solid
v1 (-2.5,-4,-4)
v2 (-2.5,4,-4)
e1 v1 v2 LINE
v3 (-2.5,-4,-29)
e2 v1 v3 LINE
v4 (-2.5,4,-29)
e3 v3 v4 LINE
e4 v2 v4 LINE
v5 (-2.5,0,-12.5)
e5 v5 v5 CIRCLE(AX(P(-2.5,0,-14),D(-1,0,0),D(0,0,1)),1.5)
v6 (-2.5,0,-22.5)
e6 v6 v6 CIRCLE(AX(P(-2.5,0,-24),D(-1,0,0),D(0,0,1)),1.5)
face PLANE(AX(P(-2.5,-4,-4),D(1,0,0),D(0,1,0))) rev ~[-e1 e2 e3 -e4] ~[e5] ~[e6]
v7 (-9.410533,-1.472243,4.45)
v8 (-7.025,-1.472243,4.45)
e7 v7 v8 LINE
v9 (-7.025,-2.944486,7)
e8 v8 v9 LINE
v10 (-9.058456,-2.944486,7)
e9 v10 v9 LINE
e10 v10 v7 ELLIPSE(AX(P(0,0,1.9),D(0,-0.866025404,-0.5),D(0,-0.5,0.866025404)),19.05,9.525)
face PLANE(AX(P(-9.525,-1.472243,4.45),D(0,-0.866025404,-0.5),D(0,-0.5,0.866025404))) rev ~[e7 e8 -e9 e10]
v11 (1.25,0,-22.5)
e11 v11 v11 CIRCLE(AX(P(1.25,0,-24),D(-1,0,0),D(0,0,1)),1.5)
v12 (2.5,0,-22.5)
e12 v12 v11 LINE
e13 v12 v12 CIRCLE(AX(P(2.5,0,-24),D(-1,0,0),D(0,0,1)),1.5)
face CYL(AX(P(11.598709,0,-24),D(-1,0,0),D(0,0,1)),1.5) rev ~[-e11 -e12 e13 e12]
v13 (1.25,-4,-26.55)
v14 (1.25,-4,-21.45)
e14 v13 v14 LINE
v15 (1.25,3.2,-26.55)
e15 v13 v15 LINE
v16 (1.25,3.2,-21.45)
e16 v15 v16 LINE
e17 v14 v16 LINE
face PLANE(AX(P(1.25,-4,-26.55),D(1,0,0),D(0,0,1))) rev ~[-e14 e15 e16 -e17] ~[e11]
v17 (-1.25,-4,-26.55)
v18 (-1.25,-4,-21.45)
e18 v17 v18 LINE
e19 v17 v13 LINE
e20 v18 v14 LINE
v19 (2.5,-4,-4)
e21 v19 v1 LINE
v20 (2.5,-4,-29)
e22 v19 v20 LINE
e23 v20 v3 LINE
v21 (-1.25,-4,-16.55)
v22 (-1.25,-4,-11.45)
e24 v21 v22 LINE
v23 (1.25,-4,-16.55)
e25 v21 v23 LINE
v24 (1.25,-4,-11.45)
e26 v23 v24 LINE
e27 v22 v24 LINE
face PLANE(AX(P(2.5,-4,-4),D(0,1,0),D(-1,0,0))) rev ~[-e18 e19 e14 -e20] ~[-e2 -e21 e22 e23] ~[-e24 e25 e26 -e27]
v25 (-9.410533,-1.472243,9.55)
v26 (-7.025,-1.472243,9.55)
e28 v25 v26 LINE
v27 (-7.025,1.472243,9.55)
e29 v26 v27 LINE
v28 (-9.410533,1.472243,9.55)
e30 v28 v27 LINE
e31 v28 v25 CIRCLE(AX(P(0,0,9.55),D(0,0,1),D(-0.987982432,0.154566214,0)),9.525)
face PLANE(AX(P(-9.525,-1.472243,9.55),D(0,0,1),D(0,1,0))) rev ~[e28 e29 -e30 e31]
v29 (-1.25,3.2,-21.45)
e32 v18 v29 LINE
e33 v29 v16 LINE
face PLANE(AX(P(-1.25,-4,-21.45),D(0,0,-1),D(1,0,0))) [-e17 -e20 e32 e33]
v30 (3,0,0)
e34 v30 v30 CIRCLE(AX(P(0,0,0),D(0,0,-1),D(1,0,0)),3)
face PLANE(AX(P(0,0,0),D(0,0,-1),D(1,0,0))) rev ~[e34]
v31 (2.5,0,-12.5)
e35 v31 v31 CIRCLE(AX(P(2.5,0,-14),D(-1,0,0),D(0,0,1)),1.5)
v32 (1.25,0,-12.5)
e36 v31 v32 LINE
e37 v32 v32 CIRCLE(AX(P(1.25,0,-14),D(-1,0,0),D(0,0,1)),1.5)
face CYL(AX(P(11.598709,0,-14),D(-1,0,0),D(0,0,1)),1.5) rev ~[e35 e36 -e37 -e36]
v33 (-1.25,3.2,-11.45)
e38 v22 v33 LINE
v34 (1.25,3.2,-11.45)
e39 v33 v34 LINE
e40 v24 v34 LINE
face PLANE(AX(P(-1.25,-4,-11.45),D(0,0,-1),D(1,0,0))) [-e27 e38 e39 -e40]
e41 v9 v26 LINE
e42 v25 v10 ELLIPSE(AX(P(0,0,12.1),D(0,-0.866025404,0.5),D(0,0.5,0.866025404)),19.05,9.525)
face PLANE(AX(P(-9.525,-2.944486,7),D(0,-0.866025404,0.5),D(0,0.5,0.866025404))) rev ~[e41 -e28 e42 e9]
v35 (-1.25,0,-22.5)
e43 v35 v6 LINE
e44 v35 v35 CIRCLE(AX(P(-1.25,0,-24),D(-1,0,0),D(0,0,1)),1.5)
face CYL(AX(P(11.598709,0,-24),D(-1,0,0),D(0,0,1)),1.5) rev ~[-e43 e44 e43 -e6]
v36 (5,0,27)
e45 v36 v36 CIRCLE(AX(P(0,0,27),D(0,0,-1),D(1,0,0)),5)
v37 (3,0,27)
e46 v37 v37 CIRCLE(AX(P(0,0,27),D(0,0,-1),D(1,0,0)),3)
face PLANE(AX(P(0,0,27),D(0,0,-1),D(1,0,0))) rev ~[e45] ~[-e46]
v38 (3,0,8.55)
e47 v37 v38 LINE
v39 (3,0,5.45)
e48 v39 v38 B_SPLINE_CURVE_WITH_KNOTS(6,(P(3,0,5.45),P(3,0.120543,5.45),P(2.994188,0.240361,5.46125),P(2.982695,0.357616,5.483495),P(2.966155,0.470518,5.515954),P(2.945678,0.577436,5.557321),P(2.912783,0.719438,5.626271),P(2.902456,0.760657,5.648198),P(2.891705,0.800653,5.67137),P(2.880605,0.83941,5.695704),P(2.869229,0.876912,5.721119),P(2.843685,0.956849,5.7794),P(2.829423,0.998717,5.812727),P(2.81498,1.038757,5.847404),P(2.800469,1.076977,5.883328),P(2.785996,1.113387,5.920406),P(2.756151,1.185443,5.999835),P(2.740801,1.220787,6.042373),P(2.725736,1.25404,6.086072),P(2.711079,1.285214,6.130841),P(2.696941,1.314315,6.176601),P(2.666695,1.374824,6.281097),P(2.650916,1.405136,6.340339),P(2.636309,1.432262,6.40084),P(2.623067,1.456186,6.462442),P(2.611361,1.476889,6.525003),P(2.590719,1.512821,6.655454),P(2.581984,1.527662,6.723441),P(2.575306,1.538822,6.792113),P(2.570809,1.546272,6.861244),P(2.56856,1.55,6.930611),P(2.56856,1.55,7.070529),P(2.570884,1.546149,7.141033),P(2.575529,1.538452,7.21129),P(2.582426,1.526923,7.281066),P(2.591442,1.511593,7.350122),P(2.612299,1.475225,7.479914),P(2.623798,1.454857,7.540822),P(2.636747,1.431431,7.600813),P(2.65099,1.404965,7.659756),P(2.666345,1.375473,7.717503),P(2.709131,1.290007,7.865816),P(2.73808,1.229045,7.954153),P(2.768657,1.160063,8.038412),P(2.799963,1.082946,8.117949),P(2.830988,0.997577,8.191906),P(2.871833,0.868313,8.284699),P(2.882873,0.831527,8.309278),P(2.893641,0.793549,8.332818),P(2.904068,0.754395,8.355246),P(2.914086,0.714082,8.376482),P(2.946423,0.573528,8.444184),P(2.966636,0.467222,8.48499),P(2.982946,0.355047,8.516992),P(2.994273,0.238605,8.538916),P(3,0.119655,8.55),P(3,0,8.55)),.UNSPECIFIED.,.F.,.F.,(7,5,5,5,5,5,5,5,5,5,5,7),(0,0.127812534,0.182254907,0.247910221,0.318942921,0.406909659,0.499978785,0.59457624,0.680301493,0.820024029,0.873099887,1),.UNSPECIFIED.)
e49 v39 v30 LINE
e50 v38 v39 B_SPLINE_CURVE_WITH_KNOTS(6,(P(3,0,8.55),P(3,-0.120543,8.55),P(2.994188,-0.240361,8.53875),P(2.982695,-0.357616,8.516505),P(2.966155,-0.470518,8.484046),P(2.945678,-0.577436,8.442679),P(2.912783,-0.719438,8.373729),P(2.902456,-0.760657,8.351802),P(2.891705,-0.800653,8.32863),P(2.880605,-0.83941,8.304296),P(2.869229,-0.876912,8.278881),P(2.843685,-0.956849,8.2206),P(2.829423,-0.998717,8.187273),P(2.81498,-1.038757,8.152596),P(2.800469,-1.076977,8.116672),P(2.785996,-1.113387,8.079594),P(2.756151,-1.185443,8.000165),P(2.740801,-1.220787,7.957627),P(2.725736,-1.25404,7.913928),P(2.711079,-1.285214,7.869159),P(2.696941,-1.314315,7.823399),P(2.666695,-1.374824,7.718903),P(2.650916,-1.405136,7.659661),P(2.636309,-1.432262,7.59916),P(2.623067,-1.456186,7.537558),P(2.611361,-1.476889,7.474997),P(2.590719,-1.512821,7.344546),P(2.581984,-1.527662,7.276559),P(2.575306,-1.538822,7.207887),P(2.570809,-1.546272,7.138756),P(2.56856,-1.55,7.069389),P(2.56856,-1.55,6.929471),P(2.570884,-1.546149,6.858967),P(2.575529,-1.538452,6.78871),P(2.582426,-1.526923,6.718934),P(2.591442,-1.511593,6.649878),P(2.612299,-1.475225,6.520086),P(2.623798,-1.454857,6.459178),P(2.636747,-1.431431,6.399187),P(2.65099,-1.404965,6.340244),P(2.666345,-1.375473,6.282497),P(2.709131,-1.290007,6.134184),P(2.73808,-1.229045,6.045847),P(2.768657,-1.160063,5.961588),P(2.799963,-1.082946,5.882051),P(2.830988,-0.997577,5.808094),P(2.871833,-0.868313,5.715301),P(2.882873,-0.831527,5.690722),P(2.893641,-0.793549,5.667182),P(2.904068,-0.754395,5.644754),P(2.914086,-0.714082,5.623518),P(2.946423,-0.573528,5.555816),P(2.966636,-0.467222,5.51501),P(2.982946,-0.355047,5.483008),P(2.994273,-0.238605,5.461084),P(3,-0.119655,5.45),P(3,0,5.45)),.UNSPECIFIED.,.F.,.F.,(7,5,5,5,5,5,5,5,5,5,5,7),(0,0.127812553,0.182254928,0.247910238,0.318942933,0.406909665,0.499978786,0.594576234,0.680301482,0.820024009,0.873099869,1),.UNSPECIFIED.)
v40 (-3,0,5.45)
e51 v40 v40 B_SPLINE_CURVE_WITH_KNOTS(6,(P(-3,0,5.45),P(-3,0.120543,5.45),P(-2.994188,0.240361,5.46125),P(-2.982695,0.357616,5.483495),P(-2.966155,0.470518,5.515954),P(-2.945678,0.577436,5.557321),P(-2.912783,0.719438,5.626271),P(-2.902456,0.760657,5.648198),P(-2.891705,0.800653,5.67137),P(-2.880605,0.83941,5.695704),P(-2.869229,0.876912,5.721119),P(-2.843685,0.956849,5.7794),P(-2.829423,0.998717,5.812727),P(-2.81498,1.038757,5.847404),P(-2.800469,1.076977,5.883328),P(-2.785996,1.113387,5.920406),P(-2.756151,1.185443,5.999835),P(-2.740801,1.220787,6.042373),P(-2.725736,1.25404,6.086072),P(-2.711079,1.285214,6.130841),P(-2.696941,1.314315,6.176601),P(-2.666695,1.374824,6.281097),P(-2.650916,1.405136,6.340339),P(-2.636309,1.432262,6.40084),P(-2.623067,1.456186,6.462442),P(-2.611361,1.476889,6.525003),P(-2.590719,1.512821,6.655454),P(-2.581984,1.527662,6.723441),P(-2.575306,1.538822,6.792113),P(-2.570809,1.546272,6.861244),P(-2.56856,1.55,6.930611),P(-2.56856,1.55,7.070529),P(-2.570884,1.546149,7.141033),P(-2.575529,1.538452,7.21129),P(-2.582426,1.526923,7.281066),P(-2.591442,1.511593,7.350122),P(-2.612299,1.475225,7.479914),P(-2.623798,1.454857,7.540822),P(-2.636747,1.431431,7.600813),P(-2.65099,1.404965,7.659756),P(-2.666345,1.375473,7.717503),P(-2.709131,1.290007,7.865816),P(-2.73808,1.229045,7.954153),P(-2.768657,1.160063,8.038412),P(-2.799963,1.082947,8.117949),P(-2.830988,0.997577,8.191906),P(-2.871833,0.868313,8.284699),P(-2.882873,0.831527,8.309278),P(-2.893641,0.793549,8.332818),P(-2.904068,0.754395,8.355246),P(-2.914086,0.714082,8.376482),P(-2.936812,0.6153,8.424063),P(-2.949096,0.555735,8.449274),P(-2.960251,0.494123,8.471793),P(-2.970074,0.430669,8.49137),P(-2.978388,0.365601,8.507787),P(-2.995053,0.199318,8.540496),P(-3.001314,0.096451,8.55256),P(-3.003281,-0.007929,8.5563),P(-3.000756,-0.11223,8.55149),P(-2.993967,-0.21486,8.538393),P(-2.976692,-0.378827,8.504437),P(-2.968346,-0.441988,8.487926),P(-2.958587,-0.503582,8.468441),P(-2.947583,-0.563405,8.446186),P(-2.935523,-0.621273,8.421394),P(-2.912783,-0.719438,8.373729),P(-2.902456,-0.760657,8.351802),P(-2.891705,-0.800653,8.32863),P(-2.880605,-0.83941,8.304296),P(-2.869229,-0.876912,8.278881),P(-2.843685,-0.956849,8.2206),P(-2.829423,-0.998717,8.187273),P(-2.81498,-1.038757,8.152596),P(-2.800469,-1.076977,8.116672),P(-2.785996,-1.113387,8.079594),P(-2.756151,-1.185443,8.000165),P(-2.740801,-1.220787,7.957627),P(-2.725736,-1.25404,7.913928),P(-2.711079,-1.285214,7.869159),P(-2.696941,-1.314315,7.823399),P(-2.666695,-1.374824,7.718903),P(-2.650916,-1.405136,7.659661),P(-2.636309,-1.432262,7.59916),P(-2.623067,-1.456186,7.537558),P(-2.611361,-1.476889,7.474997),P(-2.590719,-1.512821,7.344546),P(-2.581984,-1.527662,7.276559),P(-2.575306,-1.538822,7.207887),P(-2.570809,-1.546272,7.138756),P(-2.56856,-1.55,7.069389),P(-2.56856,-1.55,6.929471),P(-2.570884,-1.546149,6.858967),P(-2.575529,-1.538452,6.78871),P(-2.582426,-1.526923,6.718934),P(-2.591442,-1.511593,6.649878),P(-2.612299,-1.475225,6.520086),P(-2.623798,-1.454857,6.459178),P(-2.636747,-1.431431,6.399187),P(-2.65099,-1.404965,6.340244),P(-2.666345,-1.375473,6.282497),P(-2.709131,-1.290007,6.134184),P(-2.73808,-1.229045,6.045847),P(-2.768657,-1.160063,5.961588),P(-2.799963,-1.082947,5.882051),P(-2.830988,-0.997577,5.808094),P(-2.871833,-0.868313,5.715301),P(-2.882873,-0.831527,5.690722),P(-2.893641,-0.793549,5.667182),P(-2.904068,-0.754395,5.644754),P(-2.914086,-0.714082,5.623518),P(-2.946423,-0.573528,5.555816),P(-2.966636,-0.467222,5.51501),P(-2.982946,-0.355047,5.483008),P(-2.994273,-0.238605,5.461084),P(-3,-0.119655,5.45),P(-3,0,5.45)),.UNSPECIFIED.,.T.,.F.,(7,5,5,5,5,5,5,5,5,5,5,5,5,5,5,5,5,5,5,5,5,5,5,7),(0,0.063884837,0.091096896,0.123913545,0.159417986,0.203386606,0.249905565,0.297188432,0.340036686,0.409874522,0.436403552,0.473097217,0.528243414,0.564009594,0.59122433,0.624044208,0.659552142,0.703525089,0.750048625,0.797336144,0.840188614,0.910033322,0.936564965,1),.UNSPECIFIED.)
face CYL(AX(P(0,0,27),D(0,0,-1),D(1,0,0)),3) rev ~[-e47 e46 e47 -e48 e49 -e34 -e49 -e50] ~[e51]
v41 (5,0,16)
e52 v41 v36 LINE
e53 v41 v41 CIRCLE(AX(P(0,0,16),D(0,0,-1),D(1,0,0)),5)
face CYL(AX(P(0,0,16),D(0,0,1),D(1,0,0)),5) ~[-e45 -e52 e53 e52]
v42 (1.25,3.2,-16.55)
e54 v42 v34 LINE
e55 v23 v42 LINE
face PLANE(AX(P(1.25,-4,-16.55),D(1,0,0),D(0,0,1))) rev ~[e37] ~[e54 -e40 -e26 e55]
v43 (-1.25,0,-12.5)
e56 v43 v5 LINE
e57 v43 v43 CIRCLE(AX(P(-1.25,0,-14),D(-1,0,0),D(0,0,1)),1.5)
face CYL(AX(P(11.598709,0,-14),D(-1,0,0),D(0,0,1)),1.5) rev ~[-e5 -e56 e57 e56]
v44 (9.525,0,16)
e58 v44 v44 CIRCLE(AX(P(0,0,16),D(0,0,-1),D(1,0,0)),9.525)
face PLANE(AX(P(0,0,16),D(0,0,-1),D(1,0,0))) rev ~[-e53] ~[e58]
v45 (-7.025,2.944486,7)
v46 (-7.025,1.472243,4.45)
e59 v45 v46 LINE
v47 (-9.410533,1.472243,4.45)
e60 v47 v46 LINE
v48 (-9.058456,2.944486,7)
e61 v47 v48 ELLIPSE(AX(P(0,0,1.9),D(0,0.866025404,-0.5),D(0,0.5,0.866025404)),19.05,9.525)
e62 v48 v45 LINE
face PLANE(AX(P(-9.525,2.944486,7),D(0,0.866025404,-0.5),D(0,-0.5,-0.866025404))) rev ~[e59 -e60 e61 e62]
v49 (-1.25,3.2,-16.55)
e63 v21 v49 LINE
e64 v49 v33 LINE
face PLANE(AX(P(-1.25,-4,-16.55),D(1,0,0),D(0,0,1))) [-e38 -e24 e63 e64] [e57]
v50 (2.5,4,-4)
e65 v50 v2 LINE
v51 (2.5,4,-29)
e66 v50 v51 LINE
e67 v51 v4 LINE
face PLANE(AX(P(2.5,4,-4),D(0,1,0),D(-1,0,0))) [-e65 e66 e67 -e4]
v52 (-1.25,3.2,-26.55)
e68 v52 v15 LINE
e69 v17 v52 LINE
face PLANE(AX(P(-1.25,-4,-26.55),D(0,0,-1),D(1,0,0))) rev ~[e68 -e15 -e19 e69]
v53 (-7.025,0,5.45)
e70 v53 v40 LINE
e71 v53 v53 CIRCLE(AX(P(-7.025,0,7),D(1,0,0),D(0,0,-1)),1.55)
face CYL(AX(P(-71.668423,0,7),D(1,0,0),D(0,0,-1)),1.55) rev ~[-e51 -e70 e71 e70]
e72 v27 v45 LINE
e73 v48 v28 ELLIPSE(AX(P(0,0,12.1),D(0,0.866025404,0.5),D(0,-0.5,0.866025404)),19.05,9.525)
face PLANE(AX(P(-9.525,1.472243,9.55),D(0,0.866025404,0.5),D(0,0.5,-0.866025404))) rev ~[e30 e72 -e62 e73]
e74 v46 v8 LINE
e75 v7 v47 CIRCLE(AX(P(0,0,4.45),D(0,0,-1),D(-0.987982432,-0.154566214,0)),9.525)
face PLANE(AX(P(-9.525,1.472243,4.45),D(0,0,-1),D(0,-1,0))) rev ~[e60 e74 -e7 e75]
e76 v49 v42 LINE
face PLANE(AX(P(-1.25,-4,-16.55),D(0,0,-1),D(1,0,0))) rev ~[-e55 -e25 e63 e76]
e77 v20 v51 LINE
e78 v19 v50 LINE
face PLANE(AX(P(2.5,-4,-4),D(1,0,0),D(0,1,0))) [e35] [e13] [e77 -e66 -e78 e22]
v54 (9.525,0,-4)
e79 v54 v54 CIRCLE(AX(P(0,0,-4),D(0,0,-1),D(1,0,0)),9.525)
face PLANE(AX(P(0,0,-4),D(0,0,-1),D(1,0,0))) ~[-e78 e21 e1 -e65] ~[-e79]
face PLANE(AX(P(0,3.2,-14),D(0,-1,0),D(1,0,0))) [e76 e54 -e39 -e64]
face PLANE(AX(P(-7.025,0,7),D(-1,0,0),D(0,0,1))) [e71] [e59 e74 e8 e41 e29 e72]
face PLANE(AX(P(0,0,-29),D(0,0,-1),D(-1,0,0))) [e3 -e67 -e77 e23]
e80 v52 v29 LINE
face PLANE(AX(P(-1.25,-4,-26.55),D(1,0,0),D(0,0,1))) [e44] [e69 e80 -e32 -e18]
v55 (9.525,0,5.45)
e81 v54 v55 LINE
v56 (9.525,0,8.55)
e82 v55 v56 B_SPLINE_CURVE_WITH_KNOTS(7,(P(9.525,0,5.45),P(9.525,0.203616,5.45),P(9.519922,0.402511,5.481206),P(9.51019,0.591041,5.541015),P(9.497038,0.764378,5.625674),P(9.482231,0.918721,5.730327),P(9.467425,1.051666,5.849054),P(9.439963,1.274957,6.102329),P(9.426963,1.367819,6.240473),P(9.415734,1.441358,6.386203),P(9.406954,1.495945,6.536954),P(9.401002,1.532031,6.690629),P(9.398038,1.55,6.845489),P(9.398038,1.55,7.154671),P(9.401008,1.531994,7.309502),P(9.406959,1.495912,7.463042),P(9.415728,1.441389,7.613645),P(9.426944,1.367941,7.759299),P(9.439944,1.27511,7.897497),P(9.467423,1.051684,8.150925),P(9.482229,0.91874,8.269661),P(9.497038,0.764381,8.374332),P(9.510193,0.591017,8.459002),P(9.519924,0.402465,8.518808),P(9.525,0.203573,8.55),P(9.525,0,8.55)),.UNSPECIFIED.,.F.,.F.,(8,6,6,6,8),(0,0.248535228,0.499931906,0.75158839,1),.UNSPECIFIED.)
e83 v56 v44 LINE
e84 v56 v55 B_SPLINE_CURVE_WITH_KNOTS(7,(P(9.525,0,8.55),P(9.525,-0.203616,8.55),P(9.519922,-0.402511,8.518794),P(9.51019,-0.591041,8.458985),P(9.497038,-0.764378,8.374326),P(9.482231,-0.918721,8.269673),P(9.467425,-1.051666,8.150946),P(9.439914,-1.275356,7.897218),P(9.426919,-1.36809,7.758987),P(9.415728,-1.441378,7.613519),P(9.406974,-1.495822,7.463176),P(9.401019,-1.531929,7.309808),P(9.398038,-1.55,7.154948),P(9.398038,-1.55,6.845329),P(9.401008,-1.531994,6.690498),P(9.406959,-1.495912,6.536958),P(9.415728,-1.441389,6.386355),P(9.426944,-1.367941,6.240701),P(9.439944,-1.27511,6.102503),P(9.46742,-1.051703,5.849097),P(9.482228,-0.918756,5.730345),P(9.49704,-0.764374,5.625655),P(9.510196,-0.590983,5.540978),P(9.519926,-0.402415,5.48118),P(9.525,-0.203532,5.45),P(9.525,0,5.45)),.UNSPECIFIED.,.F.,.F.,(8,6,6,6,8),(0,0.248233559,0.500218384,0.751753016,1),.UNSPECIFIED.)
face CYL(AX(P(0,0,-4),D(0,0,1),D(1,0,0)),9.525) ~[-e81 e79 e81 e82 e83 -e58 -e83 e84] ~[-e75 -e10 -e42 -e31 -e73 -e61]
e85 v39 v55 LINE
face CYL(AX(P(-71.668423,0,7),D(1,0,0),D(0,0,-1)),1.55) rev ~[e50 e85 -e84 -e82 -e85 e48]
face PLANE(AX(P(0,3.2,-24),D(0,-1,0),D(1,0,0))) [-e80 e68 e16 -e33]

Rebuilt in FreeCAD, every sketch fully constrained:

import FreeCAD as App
import Part
import Sketcher
Q = App.Units.Quantity


def add_polygon(sketch, points):
    """Adds a closed chain of lines whose ends are joined by coincident constraints."""
    first, n = sketch.GeometryCount, len(points)
    for a, b in zip(points, points[1:] + points[:1]):
        sketch.addGeometry(Part.LineSegment(App.Vector(*a, 0), App.Vector(*b, 0)), False)
    for i in range(n):
        sketch.addConstraint(Sketcher.Constraint("Coincident", first + i, 2, first + (i + 1) % n, 1))

doc = App.newDocument("Part")
body = doc.addObject("PartDesign::Body", "Body")

# Sketch on XZ plane
sketch1 = doc.addObject("Sketcher::SketchObject", "Sketch")
body.addObject(sketch1)
sketch1.AttachmentSupport = (doc.XZ_Plane, [""])
sketch1.MapMode = "FlatFace"
add_polygon(sketch1, [(0, -4), (-9.5, -4), (-9.5, 16), (-5, 16), (-5, 27), (-3, 27), (-3, 0), (0, 0)])  # lines 0-7
sketch1.addConstraint([
    Sketcher.Constraint("Horizontal", 0),
    Sketcher.Constraint("Vertical", 1),
    Sketcher.Constraint("Horizontal", 2),
    Sketcher.Constraint("Vertical", 3),
    Sketcher.Constraint("Horizontal", 4),
    Sketcher.Constraint("Vertical", 5),
    Sketcher.Constraint("Horizontal", 6),
    Sketcher.Constraint("Vertical", 7),
    Sketcher.Constraint("Coincident", 6, 2, -1, 1),
    Sketcher.Constraint("DistanceX", 4, 1, 4, 2, 2.0),
    Sketcher.Constraint("DistanceX", 6, 1, 6, 2, 3.0),
    Sketcher.Constraint("DistanceY", 1, 1, 1, 2, 20.0),
    Sketcher.Constraint("DistanceY", 3, 1, 3, 2, 11.0),
    Sketcher.Constraint("DistanceY", 5, 2, 5, 1, 27.0),
    Sketcher.Constraint("DistanceX", 0, 2, 0, 1, 9.525),
])
revolution = doc.addObject("PartDesign::Revolution", "Revolution")
body.addObject(revolution)
revolution.Profile = sketch1
revolution.ReferenceAxis = (sketch1, ["V_Axis"])
revolution.Angle = 360

# Sketch on XY plane
sketch2 = doc.addObject("Sketcher::SketchObject", "Sketch001")
body.addObject(sketch2)
sketch2.AttachmentSupport = (doc.XY_Plane, [""])
sketch2.MapMode = "FlatFace"
sketch2.AttachmentOffset = App.Placement(App.Vector(0, 0, -4), App.Rotation())
add_polygon(sketch2, [(2, 4), (2, -4), (-2, -4), (-2, 4)])  # lines 0-3
sketch2.addConstraint([
    Sketcher.Constraint("Vertical", 0),
    Sketcher.Constraint("Horizontal", 1),
    Sketcher.Constraint("Vertical", 2),
    Sketcher.Constraint("Horizontal", 3),
    Sketcher.Constraint("Symmetric", 0, 2, 2, 2, -1, 1),
    Sketcher.Constraint("DistanceX", 1, 2, 1, 1, 5.0),
    Sketcher.Constraint("DistanceY", 0, 2, 0, 1, 8.0),
])
pad1 = doc.addObject("PartDesign::Pad", "Pad")
body.addObject(pad1)
pad1.Profile = sketch2
pad1.Length = 25
pad1.Reversed = True

# Sketch on YZ plane
sketch3 = doc.addObject("Sketcher::SketchObject", "Sketch002")
body.addObject(sketch3)
sketch3.AttachmentSupport = (doc.YZ_Plane, [""])
sketch3.MapMode = "FlatFace"
sketch3.AttachmentOffset = App.Placement(App.Vector(0, 0, 2.5), App.Rotation())
sketch3.addGeometry([
    Part.Circle(App.Vector(0, -24, 0), App.Vector(0, 0, 1), 1.5),
    Part.Circle(App.Vector(0, -14, 0), App.Vector(0, 0, 1), 1.5),
], False)
sketch3.addConstraint([
    Sketcher.Constraint("Equal", 0, 1),
    Sketcher.Constraint("PointOnObject", 0, 3, -2),
    Sketcher.Constraint("PointOnObject", 1, 3, -2),
    Sketcher.Constraint("Diameter", 0, 3.0),
    Sketcher.Constraint("DistanceY", 0, 3, -1, 1, 24.0),
    Sketcher.Constraint("DistanceY", 1, 3, -1, 1, 14.0),
])
doc.recompute()
hole = doc.addObject("PartDesign::Hole", "Hole")
body.addObject(hole)
hole.Profile = sketch3
hole.ThreadType = "None"
hole.Diameter = 3
hole.DepthType = "Dimension"
hole.Depth = 9.098709
hole.DrillPoint = "Angled"
hole.DrillPointAngle = 118

# Sketch on XZ plane
sketch4 = doc.addObject("Sketcher::SketchObject", "Sketch003")
body.addObject(sketch4)
sketch4.AttachmentSupport = (doc.XZ_Plane, [""])
sketch4.MapMode = "FlatFace"
sketch4.AttachmentOffset = App.Placement(App.Vector(0, 0, 4), App.Rotation())
add_polygon(sketch4, [(-1.2, -11.4), (-1.2, -16.6), (1.2, -16.6), (1.2, -11.4)])  # lines 0-3
add_polygon(sketch4, [(-1.2, -21.4), (-1.2, -26.6), (1.2, -26.6), (1.2, -21.4)])  # lines 4-7
sketch4.addConstraint([
    Sketcher.Constraint("Vertical", 0),
    Sketcher.Constraint("Horizontal", 1),
    Sketcher.Constraint("Vertical", 2),
    Sketcher.Constraint("Horizontal", 3),
    Sketcher.Constraint("Vertical", 4),
    Sketcher.Constraint("Horizontal", 5),
    Sketcher.Constraint("Vertical", 6),
    Sketcher.Constraint("Horizontal", 7),
    Sketcher.Constraint("Vertical", 3, 2, 4, 2),
    Sketcher.Constraint("Vertical", 2, 2, 5, 2),
    Sketcher.Constraint("Equal", 2, 4),
    Sketcher.Constraint("DistanceX", 1, 1, 1, 2, 2.5),
    Sketcher.Constraint("DistanceY", 0, 2, 0, 1, 5.1),
    Sketcher.Constraint("DistanceY", 4, 2, 0, 2, 10.0),
    Sketcher.Constraint("DistanceX", 0, 2, -1, 1, 1.25),
    Sketcher.Constraint("DistanceY", 0, 2, -1, 1, 16.55),
])
pocket1 = doc.addObject("PartDesign::Pocket", "Pocket")
body.addObject(pocket1)
pocket1.Profile = sketch4
pocket1.Length = 7.2

# Sketch on YZ plane
sketch5 = doc.addObject("Sketcher::SketchObject", "Sketch004")
body.addObject(sketch5)
sketch5.AttachmentSupport = (doc.YZ_Plane, [""])
sketch5.MapMode = "FlatFace"
sketch5.AttachmentOffset = App.Placement(App.Vector(0, 0, -9.525), App.Rotation())
sketch5.addGeometry(Part.Circle(App.Vector(0, 7, 0), App.Vector(0, 0, 1), 1.6), False)
sketch5.addConstraint([
    Sketcher.Constraint("PointOnObject", 0, 3, -2),
    Sketcher.Constraint("Diameter", 0, 3.1),
    Sketcher.Constraint("DistanceY", -1, 1, 0, 3, 7.0),
])
doc.recompute()
hole2 = doc.addObject("PartDesign::Hole", "Hole001")
body.addObject(hole2)
hole2.Profile = sketch5
hole2.ThreadType = "None"
hole2.Diameter = 3.1
hole2.DepthType = "ThroughAll"
hole2.Reversed = True

# Sketch on YZ plane
sketch6 = doc.addObject("Sketcher::SketchObject", "Sketch005")
body.addObject(sketch6)
sketch6.AttachmentSupport = (doc.YZ_Plane, [""])
sketch6.MapMode = "FlatFace"
sketch6.AttachmentOffset = App.Placement(App.Vector(0, 0, -9.525), App.Rotation())
add_polygon(sketch6, [(-2.9, 7), (-1.5, 9.6), (1.5, 9.6), (2.9, 7), (1.5, 4.5), (-1.5, 4.5)])  # lines 0-5
sketch6.addGeometry(Part.Circle(App.Vector(0, 7, 0), App.Vector(0, 0, 1), 0.5), False)  # 6
sketch6.addConstraint([
    Sketcher.Constraint("Horizontal", 1),
    Sketcher.Constraint("Horizontal", 4),
    Sketcher.Constraint("Symmetric", 2, 2, 5, 2, -2),
    Sketcher.Constraint("PointOnObject", 6, 3, -2),
    Sketcher.Constraint("Parallel", 0, 3),
    Sketcher.Constraint("Parallel", 2, 5),
    Sketcher.Constraint("Horizontal", 6, 3, 2, 2),
    Sketcher.Constraint("Vertical", 1, 2, 3, 2),
    Sketcher.Constraint("Vertical", 0, 2, 4, 2),
    Sketcher.Constraint("Diameter", 6, 1.0),
    Sketcher.Constraint("Angle", 0, Q("60 deg")),
    Sketcher.Constraint("DistanceY", -1, 1, 6, 3, 7.0),
    Sketcher.Constraint("DistanceY", 3, 2, 1, 2, 5.1),
    Sketcher.Constraint("DistanceX", 1, 1, 1, 2, 2.944486),
])
pocket2 = doc.addObject("PartDesign::Pocket", "Pocket001")
body.addObject(pocket2)
pocket2.Profile = sketch6
pocket2.Length = 2.5
pocket2.Reversed = True

doc.recompute()
